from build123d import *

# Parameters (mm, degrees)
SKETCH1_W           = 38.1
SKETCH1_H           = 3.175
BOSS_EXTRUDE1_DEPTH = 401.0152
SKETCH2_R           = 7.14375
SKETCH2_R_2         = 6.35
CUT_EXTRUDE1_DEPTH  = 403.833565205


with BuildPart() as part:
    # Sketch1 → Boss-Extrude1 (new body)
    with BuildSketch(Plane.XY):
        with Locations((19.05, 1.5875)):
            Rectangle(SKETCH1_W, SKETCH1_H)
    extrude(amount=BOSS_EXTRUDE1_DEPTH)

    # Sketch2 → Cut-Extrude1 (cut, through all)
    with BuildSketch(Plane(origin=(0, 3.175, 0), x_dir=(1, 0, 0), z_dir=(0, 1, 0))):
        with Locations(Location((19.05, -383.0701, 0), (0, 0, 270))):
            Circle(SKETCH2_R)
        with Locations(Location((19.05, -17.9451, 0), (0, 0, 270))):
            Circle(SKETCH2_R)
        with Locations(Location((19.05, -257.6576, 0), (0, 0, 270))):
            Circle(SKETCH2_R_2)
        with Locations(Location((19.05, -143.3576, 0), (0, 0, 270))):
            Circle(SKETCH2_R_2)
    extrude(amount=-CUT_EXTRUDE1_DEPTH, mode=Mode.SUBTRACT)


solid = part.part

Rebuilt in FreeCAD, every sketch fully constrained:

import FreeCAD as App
import Part
import Sketcher
from FreeCAD import Vector
Q = App.Units.Quantity

doc = App.newDocument("Part")
params = doc.addObject("Spreadsheet::Sheet", "Params")
for row, (alias, value) in enumerate([
    ("sketch1_width", "1.5 in"),
    ("sketch1_height", "0.125 in"),
    ("pad1_length", "15.788 in"),
    ("sketch2_diameter", "0.5 in"),
    ("sketch2_diameter2", "0.5625 in"),
], start=1):
    params.set(f"A{row}", alias)
    params.set(f"B{row}", "=" + value)
    params.setAlias(f"B{row}", alias)

body = doc.addObject("PartDesign::Body", "Body")

# Sketch on XY plane
sketch1 = body.newObject("Sketcher::SketchObject", "Sketch")
sketch1.AttachmentSupport = (doc.getObject("XY_Plane"), [""])
sketch1.MapMode = "FlatFace"
sketch1.addGeometry([
    Part.LineSegment(Vector(0, 3.2, 0), Vector(0, 0, 0)),
    Part.LineSegment(Vector(0, 0, 0), Vector(38.1, 0, 0)),
    Part.LineSegment(Vector(38.1, 0, 0), Vector(38.1, 3.2, 0)),
    Part.LineSegment(Vector(38.1, 3.2, 0), Vector(0, 3.2, 0)),
], False)
sketch1.addConstraint([
    Sketcher.Constraint("Coincident", 0, 2, 1, 1),
    Sketcher.Constraint("Coincident", 1, 2, 2, 1),
    Sketcher.Constraint("Coincident", 2, 2, 3, 1),
    Sketcher.Constraint("Coincident", 3, 2, 0, 1),
    Sketcher.Constraint("Vertical", 0),
    Sketcher.Constraint("Horizontal", 1),
    Sketcher.Constraint("Vertical", 2),
    Sketcher.Constraint("Horizontal", 3),
    Sketcher.Constraint("Coincident", 0, 2, -1, 1),
    Sketcher.Constraint("DistanceX", 1, 1, 1, 2, Q("1.5 in")),
    Sketcher.Constraint("DistanceY", 0, 2, 0, 1, Q("0.125 in")),
])
sketch1.setExpression("Constraints[9]", "Params.sketch1_width")
sketch1.setExpression("Constraints[10]", "Params.sketch1_height")
pad1 = body.newObject("PartDesign::Pad", "Pad")
pad1.Profile = sketch1
pad1.setExpression("Length", "Params.pad1_length")

# Sketch on XZ plane
sketch2 = body.newObject("Sketcher::SketchObject", "Sketch001")
sketch2.AttachmentSupport = (doc.getObject("XZ_Plane"), [""])
sketch2.MapMode = "FlatFace"
sketch2.AttachmentOffset = App.Placement(Vector(0, 0, -0.125 * 25.4), App.Rotation())
sketch2.addGeometry([
    Part.Circle(Vector(19, 383, 0), Vector(0, 0, 1), 7),
    Part.Circle(Vector(19, 18, 0), Vector(0, 0, 1), 7),
    Part.Circle(Vector(19, 258, 0), Vector(0, 0, 1), 6),
    Part.Circle(Vector(19, 143, 0), Vector(0, 0, 1), 6),
], False)
sketch2.addConstraint([
    Sketcher.Constraint("Equal", 0, 1),
    Sketcher.Constraint("Equal", 2, 3),
    Sketcher.Constraint("Vertical", 0, 3, 1, 3),
    Sketcher.Constraint("Vertical", 1, 3, 2, 3),
    Sketcher.Constraint("Vertical", 2, 3, 3, 3),
    Sketcher.Constraint("Diameter", 2, Q("0.5 in")),
    Sketcher.Constraint("Diameter", 0, Q("0.5625 in")),
    Sketcher.Constraint("DistanceY", 3, 3, 2, 3, Q("4.5 in")),
    Sketcher.Constraint("DistanceX", -1, 1, 0, 3, Q("0.75 in")),
    Sketcher.Constraint("DistanceY", -1, 1, 2, 3, Q("10.144 in")),
    Sketcher.Constraint("DistanceY", 1, 3, 0, 3, Q("14.375 in")),
    Sketcher.Constraint("DistanceY", 2, 3, 0, 3, Q("4.9375 in")),
])
sketch2.setExpression("Constraints[5]", "Params.sketch2_diameter")
sketch2.setExpression("Constraints[6]", "Params.sketch2_diameter2")
pocket1 = body.newObject("PartDesign::Pocket", "Pocket")
pocket1.Profile = sketch2
pocket1.Type = "ThroughAll"
pocket1.Reversed = True

doc.recompute()
